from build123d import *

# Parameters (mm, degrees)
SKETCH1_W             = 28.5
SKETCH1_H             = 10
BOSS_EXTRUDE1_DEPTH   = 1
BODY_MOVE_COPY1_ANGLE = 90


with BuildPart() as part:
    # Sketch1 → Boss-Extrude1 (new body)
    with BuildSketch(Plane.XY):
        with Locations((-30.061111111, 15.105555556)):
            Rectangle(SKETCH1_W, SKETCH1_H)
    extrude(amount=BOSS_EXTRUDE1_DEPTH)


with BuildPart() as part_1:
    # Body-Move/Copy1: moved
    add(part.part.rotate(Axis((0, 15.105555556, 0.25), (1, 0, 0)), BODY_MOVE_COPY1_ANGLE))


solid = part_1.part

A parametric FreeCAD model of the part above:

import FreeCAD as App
import Part
import Sketcher

V = App.Vector
Q = App.Units.Quantity

doc = App.newDocument("Part")
body = doc.addObject("PartDesign::Body", "Body")

# Sketch on XY plane
sketch1 = body.newObject("Sketcher::SketchObject", "Sketch")
sketch1.AttachmentSupport = (doc.getObject("XY_Plane"), [""])
sketch1.MapMode = "FlatFace"
sketch1.addGeometry(Part.LineSegment(V(-44, 20, 0), V(-44, 10, 0)), False)
sketch1.addGeometry(Part.LineSegment(V(-44, 10, 0), V(-16, 10, 0)), False)
sketch1.addGeometry(Part.LineSegment(V(-16, 10, 0), V(-16, 20, 0)), False)
sketch1.addGeometry(Part.LineSegment(V(-16, 20, 0), V(-44, 20, 0)), False)
sketch1.addConstraint(Sketcher.Constraint("Coincident", 0, 2, 1, 1))
sketch1.addConstraint(Sketcher.Constraint("Coincident", 1, 2, 2, 1))
sketch1.addConstraint(Sketcher.Constraint("Coincident", 2, 2, 3, 1))
sketch1.addConstraint(Sketcher.Constraint("Coincident", 3, 2, 0, 1))
sketch1.addConstraint(Sketcher.Constraint("Vertical", 0))
sketch1.addConstraint(Sketcher.Constraint("Horizontal", 1))
sketch1.addConstraint(Sketcher.Constraint("Vertical", 2))
sketch1.addConstraint(Sketcher.Constraint("Horizontal", 3))
sketch1.addConstraint(Sketcher.Constraint("DistanceY", 0, 2, 0, 1, Q("10 mm")))
sketch1.addConstraint(Sketcher.Constraint("DistanceX", 1, 1, 1, 2, Q("28.5 mm")))
sketch1.addConstraint(Sketcher.Constraint("DistanceX", 0, 2, -1, 1, Q("44.311111 mm")))
sketch1.addConstraint(Sketcher.Constraint("DistanceY", -1, 1, 0, 2, Q("10.105556 mm")))
pad1 = body.newObject("PartDesign::Pad", "Pad")
pad1.Profile = sketch1
pad1.Length = 1
body2 = doc.addObject("PartDesign::Body", "Body001")
doc.recompute()

body.Placement = App.Placement(V(0, 15.355556, -14.855556), App.Rotation(V(1, 0, 0), 90))
boolean = body2.newObject("PartDesign::Boolean", "Boolean")
boolean.Type = "Fuse"
boolean.addObjects([body])

doc.recompute()
